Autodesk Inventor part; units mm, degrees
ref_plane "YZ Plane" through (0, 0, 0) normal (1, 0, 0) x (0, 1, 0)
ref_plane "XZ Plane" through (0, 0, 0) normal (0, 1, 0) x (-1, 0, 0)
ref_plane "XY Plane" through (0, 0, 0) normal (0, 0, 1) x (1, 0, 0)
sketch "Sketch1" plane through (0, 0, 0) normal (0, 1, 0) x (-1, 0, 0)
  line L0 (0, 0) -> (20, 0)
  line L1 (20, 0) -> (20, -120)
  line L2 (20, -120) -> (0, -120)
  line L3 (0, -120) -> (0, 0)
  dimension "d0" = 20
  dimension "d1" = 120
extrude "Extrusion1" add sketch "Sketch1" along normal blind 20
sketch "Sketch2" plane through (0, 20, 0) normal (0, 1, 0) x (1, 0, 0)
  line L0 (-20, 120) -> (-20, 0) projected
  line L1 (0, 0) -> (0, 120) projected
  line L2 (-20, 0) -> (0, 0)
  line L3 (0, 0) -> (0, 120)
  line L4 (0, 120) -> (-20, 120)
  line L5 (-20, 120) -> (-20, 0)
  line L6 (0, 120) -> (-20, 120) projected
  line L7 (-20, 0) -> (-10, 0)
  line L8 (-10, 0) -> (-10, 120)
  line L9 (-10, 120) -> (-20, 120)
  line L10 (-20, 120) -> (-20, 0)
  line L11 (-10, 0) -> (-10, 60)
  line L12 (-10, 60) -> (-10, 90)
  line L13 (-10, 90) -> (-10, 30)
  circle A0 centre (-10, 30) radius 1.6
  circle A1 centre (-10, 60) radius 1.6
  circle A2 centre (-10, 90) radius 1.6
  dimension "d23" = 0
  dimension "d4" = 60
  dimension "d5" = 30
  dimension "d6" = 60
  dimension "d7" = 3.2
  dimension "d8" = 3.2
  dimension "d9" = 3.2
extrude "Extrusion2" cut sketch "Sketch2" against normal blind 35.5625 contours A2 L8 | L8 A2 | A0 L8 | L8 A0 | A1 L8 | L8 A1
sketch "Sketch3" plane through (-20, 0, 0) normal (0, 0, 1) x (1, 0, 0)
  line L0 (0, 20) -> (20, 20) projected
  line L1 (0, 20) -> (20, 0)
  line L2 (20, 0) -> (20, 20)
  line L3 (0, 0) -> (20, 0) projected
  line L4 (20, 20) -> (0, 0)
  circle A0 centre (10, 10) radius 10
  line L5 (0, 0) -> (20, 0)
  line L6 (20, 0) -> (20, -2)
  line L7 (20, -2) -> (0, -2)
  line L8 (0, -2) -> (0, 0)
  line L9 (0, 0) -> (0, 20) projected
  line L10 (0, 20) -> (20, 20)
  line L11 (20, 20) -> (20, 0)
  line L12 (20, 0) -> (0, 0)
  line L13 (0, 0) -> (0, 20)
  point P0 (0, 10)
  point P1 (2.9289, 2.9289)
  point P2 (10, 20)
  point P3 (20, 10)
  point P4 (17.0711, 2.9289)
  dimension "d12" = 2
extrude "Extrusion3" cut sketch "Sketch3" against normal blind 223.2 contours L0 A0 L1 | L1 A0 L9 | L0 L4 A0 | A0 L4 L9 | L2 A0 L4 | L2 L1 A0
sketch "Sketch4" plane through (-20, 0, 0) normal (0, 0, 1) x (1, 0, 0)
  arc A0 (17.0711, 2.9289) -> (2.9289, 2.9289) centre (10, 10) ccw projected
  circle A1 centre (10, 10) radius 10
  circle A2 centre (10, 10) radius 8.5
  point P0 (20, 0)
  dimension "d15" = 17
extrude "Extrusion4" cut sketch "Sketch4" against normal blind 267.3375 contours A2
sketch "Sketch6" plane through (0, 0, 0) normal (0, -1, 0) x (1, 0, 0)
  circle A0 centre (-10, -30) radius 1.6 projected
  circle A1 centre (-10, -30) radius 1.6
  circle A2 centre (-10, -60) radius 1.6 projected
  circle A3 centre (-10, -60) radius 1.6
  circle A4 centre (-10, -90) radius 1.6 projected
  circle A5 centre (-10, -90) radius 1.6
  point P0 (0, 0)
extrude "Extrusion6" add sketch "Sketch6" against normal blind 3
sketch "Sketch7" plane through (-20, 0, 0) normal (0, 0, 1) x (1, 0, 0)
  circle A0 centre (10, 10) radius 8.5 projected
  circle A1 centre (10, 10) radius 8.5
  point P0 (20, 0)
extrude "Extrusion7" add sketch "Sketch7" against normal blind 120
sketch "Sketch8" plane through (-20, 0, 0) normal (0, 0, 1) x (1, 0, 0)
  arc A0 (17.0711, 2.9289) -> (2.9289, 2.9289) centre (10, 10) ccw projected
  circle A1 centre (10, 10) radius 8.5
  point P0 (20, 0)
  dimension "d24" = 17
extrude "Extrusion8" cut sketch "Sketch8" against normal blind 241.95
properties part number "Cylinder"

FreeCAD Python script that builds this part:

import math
import FreeCAD as App
import Part
import Sketcher

V = App.Vector

doc = App.newDocument("Part")
body = doc.addObject("PartDesign::Body", "Body")

# Sketch on XZ plane
sketch1 = body.newObject("Sketcher::SketchObject", "Sketch")
sketch1.AttachmentSupport = (doc.getObject("XZ_Plane"), [""])
sketch1.MapMode = "FlatFace"
sketch1.addGeometry(Part.LineSegment(V(-20, 0, 0), V(0, 0, 0)), False)
sketch1.addGeometry(Part.LineSegment(V(0, 0, 0), V(0, -120, 0)), False)
sketch1.addGeometry(Part.LineSegment(V(0, -120, 0), V(-20, -120, 0)), False)
sketch1.addGeometry(Part.LineSegment(V(-20, -120, 0), V(-20, 0, 0)), False)
sketch1.addConstraint(Sketcher.Constraint("Coincident", 0, 2, 1, 1))
sketch1.addConstraint(Sketcher.Constraint("Coincident", 1, 2, 2, 1))
sketch1.addConstraint(Sketcher.Constraint("Coincident", 2, 2, 3, 1))
sketch1.addConstraint(Sketcher.Constraint("Coincident", 3, 2, 0, 1))
sketch1.addConstraint(Sketcher.Constraint("Horizontal", 0))
sketch1.addConstraint(Sketcher.Constraint("Vertical", 1))
sketch1.addConstraint(Sketcher.Constraint("Horizontal", 2))
sketch1.addConstraint(Sketcher.Constraint("Vertical", 3))
sketch1.addConstraint(Sketcher.Constraint("Coincident", 0, 2, -1, 1))
sketch1.addConstraint(Sketcher.Constraint("DistanceX", 0, 1, 0, 2, 20.0))
sketch1.addConstraint(Sketcher.Constraint("DistanceY", 1, 2, 1, 1, 120.0))
pad1 = body.newObject("PartDesign::Pad", "Pad")
pad1.Profile = sketch1
pad1.Length = 20
pad1.Reversed = True

# Sketch on XZ plane
sketch2 = body.newObject("Sketcher::SketchObject", "Sketch001")
sketch2.AttachmentSupport = (doc.getObject("XZ_Plane"), [""])
sketch2.MapMode = "FlatFace"
sketch2.AttachmentOffset = App.Placement(V(0, 0, -20), App.Rotation())
sketch2.addGeometry(Part.Circle(V(-10, -90, 0), V(0, 0, 1), 1.6), False)
sketch2.addGeometry(Part.Circle(V(-10, -30, 0), V(0, 0, 1), 1.6), False)
sketch2.addGeometry(Part.Circle(V(-10, -60, 0), V(0, 0, 1), 1.6), False)
sketch2.addConstraint(Sketcher.Constraint("Equal", 0, 1))
sketch2.addConstraint(Sketcher.Constraint("Equal", 1, 2))
sketch2.addConstraint(Sketcher.Constraint("Vertical", 0, 3, 1, 3))
sketch2.addConstraint(Sketcher.Constraint("Vertical", 1, 3, 2, 3))
sketch2.addConstraint(Sketcher.Constraint("Diameter", 0, 3.2))
sketch2.addConstraint(Sketcher.Constraint("DistanceY", 1, 3, -1, 1, 30.0))
sketch2.addConstraint(Sketcher.Constraint("DistanceY", 2, 3, -1, 1, 60.0))
sketch2.addConstraint(Sketcher.Constraint("DistanceY", 0, 3, 1, 3, 60.0))
sketch2.addConstraint(Sketcher.Constraint("DistanceX", 0, 3, -1, 1, 10.0))
pocket1 = body.newObject("PartDesign::Pocket", "Pocket")
pocket1.Profile = sketch2
pocket1.Length = 35.5625
pocket1.Reversed = True

# Sketch on XY plane
sketch3 = body.newObject("Sketcher::SketchObject", "Sketch002")
sketch3.AttachmentSupport = (doc.getObject("XY_Plane"), [""])
sketch3.MapMode = "FlatFace"
sketch3.addGeometry(Part.LineSegment(V(-10, 20, 0), V(-20, 20, 0)), False)
sketch3.addGeometry(Part.LineSegment(V(-20, 20, 0), V(-20, 10, 0)), False)
sketch3.addGeometry(Part.ArcOfCircle(Part.Circle(V(-10, 10, 0), V(0, 0, 1), 10), math.radians(90), math.radians(180)), False)
sketch3.addGeometry(Part.LineSegment(V(0, 20, 0), V(-10, 20, 0)), False)
sketch3.addGeometry(Part.ArcOfCircle(Part.Circle(V(-10, 10, 0), V(0, 0, 1), 10), math.radians(0), math.radians(90)), False)
sketch3.addGeometry(Part.LineSegment(V(0, 10, 0), V(0, 20, 0)), False)
sketch3.addGeometry(Part.ArcOfCircle(Part.Circle(V(-10, 10, 0), V(0, 0, 1), 10), math.radians(180), math.radians(225)), False)
sketch3.addGeometry(Part.LineSegment(V(-20, 10, 0), V(-20, 0, 0)), False)
sketch3.addGeometry(Part.LineSegment(V(-20, 0, 0), V(-17.1, 2.9, 0)), False)
sketch3.addGeometry(Part.LineSegment(V(0, 0, 0), V(0, 10, 0)), False)
sketch3.addGeometry(Part.ArcOfCircle(Part.Circle(V(-10, 10, 0), V(0, 0, 1), 10), math.radians(-45), math.radians(0)), False)
sketch3.addGeometry(Part.LineSegment(V(-2.9, 2.9, 0), V(0, 0, 0)), False)
sketch3.addConstraint(Sketcher.Constraint("Coincident", 0, 2, 1, 1))
sketch3.addConstraint(Sketcher.Constraint("Tangent", 1, 2, 2, 2))
sketch3.addConstraint(Sketcher.Constraint("Tangent", 2, 1, 0, 1))
sketch3.addConstraint(Sketcher.Constraint("Tangent", 3, 2, 4, 2))
sketch3.addConstraint(Sketcher.Constraint("Tangent", 4, 1, 5, 1))
sketch3.addConstraint(Sketcher.Constraint("Coincident", 5, 2, 3, 1))
sketch3.addConstraint(Sketcher.Constraint("Tangent", 6, 1, 7, 1))
sketch3.addConstraint(Sketcher.Constraint("Coincident", 7, 2, 8, 1))
sketch3.addConstraint(Sketcher.Constraint("Coincident", 8, 2, 6, 2))
sketch3.addConstraint(Sketcher.Constraint("Tangent", 9, 2, 10, 2))
sketch3.addConstraint(Sketcher.Constraint("Coincident", 10, 1, 11, 1))
sketch3.addConstraint(Sketcher.Constraint("Coincident", 11, 2, 9, 1))
sketch3.addConstraint(Sketcher.Constraint("Horizontal", 0))
sketch3.addConstraint(Sketcher.Constraint("Vertical", 1))
sketch3.addConstraint(Sketcher.Constraint("Horizontal", 3))
sketch3.addConstraint(Sketcher.Constraint("Vertical", 5))
sketch3.addConstraint(Sketcher.Constraint("Vertical", 7))
sketch3.addConstraint(Sketcher.Constraint("Vertical", 9))
sketch3.addConstraint(Sketcher.Constraint("Coincident", 11, 2, -1, 1))
sketch3.addConstraint(Sketcher.Constraint("Coincident", 4, 3, 2, 3))
sketch3.addConstraint(Sketcher.Constraint("Coincident", 6, 3, 2, 3))
sketch3.addConstraint(Sketcher.Constraint("Coincident", 10, 3, 2, 3))
sketch3.addConstraint(Sketcher.Constraint("Equal", 2, 4))
sketch3.addConstraint(Sketcher.Constraint("Equal", 4, 6))
sketch3.addConstraint(Sketcher.Constraint("Equal", 6, 10))
sketch3.addConstraint(Sketcher.Constraint("PointOnObject", 7, 2, -1))
sketch3.addConstraint(Sketcher.Constraint("Perpendicular", 8, 11))
sketch3.addConstraint(Sketcher.Constraint("Horizontal", 8, 2, 10, 1))
sketch3.addConstraint(Sketcher.Constraint("Equal", 5, 7))
sketch3.addConstraint(Sketcher.Constraint("Radius", 2, 10.0))
pocket2 = body.newObject("PartDesign::Pocket", "Pocket001")
pocket2.Profile = sketch3
pocket2.Length = 223.2

# Sketch on XY plane
sketch4 = body.newObject("Sketcher::SketchObject", "Sketch003")
sketch4.AttachmentSupport = (doc.getObject("XY_Plane"), [""])
sketch4.MapMode = "FlatFace"
sketch4.addGeometry(Part.Circle(V(-10, 10, 0), V(0, 0, 1), 8), False)
sketch4.addConstraint(Sketcher.Constraint("Diameter", 0, 17.0))
sketch4.addConstraint(Sketcher.Constraint("DistanceX", 0, 3, -1, 1, 10.0))
sketch4.addConstraint(Sketcher.Constraint("DistanceY", -1, 1, 0, 3, 10.0))
pocket3 = body.newObject("PartDesign::Pocket", "Pocket002")
pocket3.Profile = sketch4
pocket3.Length = 267.3375

# Sketch on XZ plane
sketch5 = body.newObject("Sketcher::SketchObject", "Sketch004")
sketch5.AttachmentSupport = (doc.getObject("XZ_Plane"), [""])
sketch5.MapMode = "FlatFace"
sketch5.addGeometry(Part.Circle(V(-10, -30, 0), V(0, 0, 1), 1.6), False)
sketch5.addGeometry(Part.Circle(V(-10, -60, 0), V(0, 0, 1), 1.6), False)
sketch5.addGeometry(Part.Circle(V(-10, -90, 0), V(0, 0, 1), 1.6), False)
sketch5.addConstraint(Sketcher.Constraint("Equal", 0, 1))
sketch5.addConstraint(Sketcher.Constraint("Equal", 1, 2))
sketch5.addConstraint(Sketcher.Constraint("Vertical", 0, 3, 1, 3))
sketch5.addConstraint(Sketcher.Constraint("Vertical", 1, 3, 2, 3))
sketch5.addConstraint(Sketcher.Constraint("Diameter", 0, 3.2))
sketch5.addConstraint(Sketcher.Constraint("DistanceX", 0, 3, -1, 1, 10.0))
sketch5.addConstraint(Sketcher.Constraint("DistanceY", 0, 3, -1, 1, 30.0))
sketch5.addConstraint(Sketcher.Constraint("DistanceY", 1, 3, -1, 1, 60.0))
sketch5.addConstraint(Sketcher.Constraint("DistanceY", 2, 3, -1, 1, 90.0))
pad2 = body.newObject("PartDesign::Pad", "Pad001")
pad2.Profile = sketch5
pad2.Length = 3
pad2.Reversed = True

# Sketch on XY plane
sketch6 = body.newObject("Sketcher::SketchObject", "Sketch005")
sketch6.AttachmentSupport = (doc.getObject("XY_Plane"), [""])
sketch6.MapMode = "FlatFace"
sketch6.addGeometry(Part.Circle(V(-10, 10, 0), V(0, 0, 1), 8), False)
sketch6.addConstraint(Sketcher.Constraint("Diameter", 0, 17.0))
sketch6.addConstraint(Sketcher.Constraint("DistanceX", 0, 3, -1, 1, 10.0))
sketch6.addConstraint(Sketcher.Constraint("DistanceY", -1, 1, 0, 3, 10.0))
pad3 = body.newObject("PartDesign::Pad", "Pad002")
pad3.Profile = sketch6
pad3.Length = 120
pad3.Reversed = True

# Sketch on XY plane
sketch7 = body.newObject("Sketcher::SketchObject", "Sketch006")
sketch7.AttachmentSupport = (doc.getObject("XY_Plane"), [""])
sketch7.MapMode = "FlatFace"
sketch7.addGeometry(Part.Circle(V(-10, 10, 0), V(0, 0, 1), 8), False)
sketch7.addConstraint(Sketcher.Constraint("Diameter", 0, 17.0))
sketch7.addConstraint(Sketcher.Constraint("DistanceX", 0, 3, -1, 1, 10.0))
sketch7.addConstraint(Sketcher.Constraint("DistanceY", -1, 1, 0, 3, 10.0))
pocket4 = body.newObject("PartDesign::Pocket", "Pocket003")
pocket4.Profile = sketch7
pocket4.Length = 241.95

doc.recompute()
